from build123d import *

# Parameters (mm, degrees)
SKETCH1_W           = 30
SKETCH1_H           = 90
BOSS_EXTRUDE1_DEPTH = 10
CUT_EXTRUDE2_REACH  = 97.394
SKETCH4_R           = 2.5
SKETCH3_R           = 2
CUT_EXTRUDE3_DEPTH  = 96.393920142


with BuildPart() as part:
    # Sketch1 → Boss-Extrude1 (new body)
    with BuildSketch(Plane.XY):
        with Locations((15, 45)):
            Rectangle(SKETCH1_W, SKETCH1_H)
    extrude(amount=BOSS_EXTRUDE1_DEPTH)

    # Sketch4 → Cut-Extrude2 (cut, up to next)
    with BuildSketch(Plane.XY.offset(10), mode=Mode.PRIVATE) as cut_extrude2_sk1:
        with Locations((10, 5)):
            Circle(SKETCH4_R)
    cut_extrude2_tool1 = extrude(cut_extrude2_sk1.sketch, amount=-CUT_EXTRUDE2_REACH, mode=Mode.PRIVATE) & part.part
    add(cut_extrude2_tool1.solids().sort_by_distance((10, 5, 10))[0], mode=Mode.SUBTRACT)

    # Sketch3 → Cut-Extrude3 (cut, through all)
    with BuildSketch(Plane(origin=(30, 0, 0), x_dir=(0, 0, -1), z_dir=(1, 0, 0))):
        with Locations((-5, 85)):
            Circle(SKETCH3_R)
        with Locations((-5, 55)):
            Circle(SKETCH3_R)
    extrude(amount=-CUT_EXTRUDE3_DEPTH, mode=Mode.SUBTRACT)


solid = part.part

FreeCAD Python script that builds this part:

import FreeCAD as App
import Part
import Sketcher

V = App.Vector


def add_polygon(sketch, points):
    """Adds a closed chain of lines whose ends are joined by coincident constraints."""
    first, n = sketch.GeometryCount, len(points)
    for a, b in zip(points, points[1:] + points[:1]):
        sketch.addGeometry(Part.LineSegment(App.Vector(*a, 0), App.Vector(*b, 0)), False)
    for i in range(n):
        sketch.addConstraint(Sketcher.Constraint("Coincident", first + i, 2, first + (i + 1) % n, 1))

doc = App.newDocument("Part")
params = doc.addObject("Spreadsheet::Sheet", "Params")
for row, (alias, value) in enumerate([
    ("sketch1_width", "30 mm"),
    ("sketch1_height", "90 mm"),
    ("pad1_length", "10 mm"),
    ("sketch2_diameter", "5 mm"),
    ("sketch3_diameter", "4 mm"),
], start=1):
    params.set(f"A{row}", alias)
    params.set(f"B{row}", "=" + value)
    params.setAlias(f"B{row}", alias)

body = doc.addObject("PartDesign::Body", "Body")

sketch1 = body.newObject("Sketcher::SketchObject", "Sketch")
sketch1.AttachmentSupport = (doc.getObject("XY_Plane"), [""])
sketch1.MapMode = "FlatFace"
add_polygon(sketch1, [(0, 90), (0, 0), (30, 0), (30, 90)])
sketch1.addConstraint([
    Sketcher.Constraint("Vertical", 0),
    Sketcher.Constraint("Horizontal", 1),
    Sketcher.Constraint("Vertical", 2),
    Sketcher.Constraint("Horizontal", 3),
    Sketcher.Constraint("Coincident", 0, 2, -1, 1),
    Sketcher.Constraint("DistanceX", 1, 1, 1, 2, 30.0),
    Sketcher.Constraint("DistanceY", 0, 2, 0, 1, 90.0),
])
sketch1.setExpression("Constraints[9]", "Params.sketch1_width")
sketch1.setExpression("Constraints[10]", "Params.sketch1_height")
pad1 = body.newObject("PartDesign::Pad", "Pad")
pad1.Profile = sketch1
pad1.setExpression("Length", "Params.pad1_length")

sketch2 = body.newObject("Sketcher::SketchObject", "Sketch001")
sketch2.AttachmentSupport = (doc.getObject("XY_Plane"), [""])
sketch2.MapMode = "FlatFace"
sketch2.AttachmentOffset = App.Placement(V(0, 0, 10), App.Rotation())
sketch2.addGeometry(Part.Circle(V(10, 5, 0), V(0, 0, 1), 2.5), False)
sketch2.addConstraint([
    Sketcher.Constraint("Diameter", 0, 5.0),
    Sketcher.Constraint("DistanceX", -1, 1, 0, 3, 10.0),
    Sketcher.Constraint("DistanceY", -1, 1, 0, 3, 5.0),
])
sketch2.setExpression("Constraints[0]", "Params.sketch2_diameter")
pocket1 = body.newObject("PartDesign::Pocket", "Pocket")
pocket1.Profile = sketch2
pocket1.Type = "UpToFirst"

sketch3 = body.newObject("Sketcher::SketchObject", "Sketch002")
sketch3.AttachmentSupport = (doc.getObject("YZ_Plane"), [""])
sketch3.MapMode = "FlatFace"
sketch3.AttachmentOffset = App.Placement(V(0, 0, 30), App.Rotation())
sketch3.addGeometry([
    Part.Circle(V(85, 5, 0), V(0, 0, 1), 2),
    Part.Circle(V(55, 5, 0), V(0, 0, 1), 2),
], False)
sketch3.addConstraint([
    Sketcher.Constraint("Equal", 0, 1),
    Sketcher.Constraint("Horizontal", 0, 3, 1, 3),
    Sketcher.Constraint("Diameter", 0, 4.0),
    Sketcher.Constraint("DistanceX", -1, 1, 0, 3, 85.0),
    Sketcher.Constraint("DistanceY", -1, 1, 0, 3, 5.0),
    Sketcher.Constraint("DistanceX", -1, 1, 1, 3, 55.0),
])
sketch3.setExpression("Constraints[2]", "Params.sketch3_diameter")
pocket2 = body.newObject("PartDesign::Pocket", "Pocket001")
pocket2.Profile = sketch3
pocket2.Type = "ThroughAll"

doc.recompute()
